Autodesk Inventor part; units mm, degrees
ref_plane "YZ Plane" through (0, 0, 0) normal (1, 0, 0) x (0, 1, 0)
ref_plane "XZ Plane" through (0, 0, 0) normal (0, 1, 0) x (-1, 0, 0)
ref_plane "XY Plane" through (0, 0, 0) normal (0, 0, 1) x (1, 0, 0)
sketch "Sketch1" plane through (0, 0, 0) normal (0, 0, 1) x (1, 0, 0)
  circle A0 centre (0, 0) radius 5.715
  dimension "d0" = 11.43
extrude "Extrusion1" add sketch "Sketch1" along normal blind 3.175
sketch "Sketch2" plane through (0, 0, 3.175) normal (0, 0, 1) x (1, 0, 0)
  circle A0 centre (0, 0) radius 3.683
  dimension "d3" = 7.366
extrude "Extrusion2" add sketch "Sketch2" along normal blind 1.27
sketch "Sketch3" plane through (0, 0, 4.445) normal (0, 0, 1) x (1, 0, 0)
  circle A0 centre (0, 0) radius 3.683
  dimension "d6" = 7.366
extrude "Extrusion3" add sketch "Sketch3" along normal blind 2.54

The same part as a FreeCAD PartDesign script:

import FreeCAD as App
import Part
import Sketcher

V = App.Vector
Q = App.Units.Quantity

doc = App.newDocument("Part")
body = doc.addObject("PartDesign::Body", "Body")

sketch1 = body.newObject("Sketcher::SketchObject", "Sketch")
sketch1.AttachmentSupport = (doc.getObject("XY_Plane"), [""])
sketch1.MapMode = "FlatFace"
sketch1.addGeometry(Part.Circle(V(0, 0, 0), V(0, 0, 1), 6), False)
sketch1.addConstraint([
    Sketcher.Constraint("Coincident", 0, 3, -1, 1),
    Sketcher.Constraint("Diameter", 0, Q("0.45 in")),
])
pad1 = body.newObject("PartDesign::Pad", "Pad")
pad1.Profile = sketch1
pad1.Length = Q("0.125 in")

sketch2 = body.newObject("Sketcher::SketchObject", "Sketch001")
sketch2.AttachmentSupport = (doc.getObject("XY_Plane"), [""])
sketch2.MapMode = "FlatFace"
sketch2.AttachmentOffset = App.Placement(V(0, 0, 0.125 * 25.4), App.Rotation())
sketch2.addGeometry(Part.Circle(V(0, 0, 0), V(0, 0, 1), 3.7), False)
sketch2.addConstraint([
    Sketcher.Constraint("Coincident", 0, 3, -1, 1),
    Sketcher.Constraint("Diameter", 0, Q("0.29 in")),
])
pad2 = body.newObject("PartDesign::Pad", "Pad001")
pad2.Profile = sketch2
pad2.Length = Q("0.05 in")

sketch3 = body.newObject("Sketcher::SketchObject", "Sketch002")
sketch3.AttachmentSupport = (doc.getObject("XY_Plane"), [""])
sketch3.MapMode = "FlatFace"
sketch3.AttachmentOffset = App.Placement(V(0, 0, 0.175 * 25.4), App.Rotation())
sketch3.addGeometry(Part.Circle(V(0, 0, 0), V(0, 0, 1), 3.7), False)
sketch3.addConstraint([
    Sketcher.Constraint("Coincident", 0, 3, -1, 1),
    Sketcher.Constraint("Diameter", 0, Q("0.29 in")),
])
pad3 = body.newObject("PartDesign::Pad", "Pad002")
pad3.Profile = sketch3
pad3.Length = Q("0.1 in")

doc.recompute()
